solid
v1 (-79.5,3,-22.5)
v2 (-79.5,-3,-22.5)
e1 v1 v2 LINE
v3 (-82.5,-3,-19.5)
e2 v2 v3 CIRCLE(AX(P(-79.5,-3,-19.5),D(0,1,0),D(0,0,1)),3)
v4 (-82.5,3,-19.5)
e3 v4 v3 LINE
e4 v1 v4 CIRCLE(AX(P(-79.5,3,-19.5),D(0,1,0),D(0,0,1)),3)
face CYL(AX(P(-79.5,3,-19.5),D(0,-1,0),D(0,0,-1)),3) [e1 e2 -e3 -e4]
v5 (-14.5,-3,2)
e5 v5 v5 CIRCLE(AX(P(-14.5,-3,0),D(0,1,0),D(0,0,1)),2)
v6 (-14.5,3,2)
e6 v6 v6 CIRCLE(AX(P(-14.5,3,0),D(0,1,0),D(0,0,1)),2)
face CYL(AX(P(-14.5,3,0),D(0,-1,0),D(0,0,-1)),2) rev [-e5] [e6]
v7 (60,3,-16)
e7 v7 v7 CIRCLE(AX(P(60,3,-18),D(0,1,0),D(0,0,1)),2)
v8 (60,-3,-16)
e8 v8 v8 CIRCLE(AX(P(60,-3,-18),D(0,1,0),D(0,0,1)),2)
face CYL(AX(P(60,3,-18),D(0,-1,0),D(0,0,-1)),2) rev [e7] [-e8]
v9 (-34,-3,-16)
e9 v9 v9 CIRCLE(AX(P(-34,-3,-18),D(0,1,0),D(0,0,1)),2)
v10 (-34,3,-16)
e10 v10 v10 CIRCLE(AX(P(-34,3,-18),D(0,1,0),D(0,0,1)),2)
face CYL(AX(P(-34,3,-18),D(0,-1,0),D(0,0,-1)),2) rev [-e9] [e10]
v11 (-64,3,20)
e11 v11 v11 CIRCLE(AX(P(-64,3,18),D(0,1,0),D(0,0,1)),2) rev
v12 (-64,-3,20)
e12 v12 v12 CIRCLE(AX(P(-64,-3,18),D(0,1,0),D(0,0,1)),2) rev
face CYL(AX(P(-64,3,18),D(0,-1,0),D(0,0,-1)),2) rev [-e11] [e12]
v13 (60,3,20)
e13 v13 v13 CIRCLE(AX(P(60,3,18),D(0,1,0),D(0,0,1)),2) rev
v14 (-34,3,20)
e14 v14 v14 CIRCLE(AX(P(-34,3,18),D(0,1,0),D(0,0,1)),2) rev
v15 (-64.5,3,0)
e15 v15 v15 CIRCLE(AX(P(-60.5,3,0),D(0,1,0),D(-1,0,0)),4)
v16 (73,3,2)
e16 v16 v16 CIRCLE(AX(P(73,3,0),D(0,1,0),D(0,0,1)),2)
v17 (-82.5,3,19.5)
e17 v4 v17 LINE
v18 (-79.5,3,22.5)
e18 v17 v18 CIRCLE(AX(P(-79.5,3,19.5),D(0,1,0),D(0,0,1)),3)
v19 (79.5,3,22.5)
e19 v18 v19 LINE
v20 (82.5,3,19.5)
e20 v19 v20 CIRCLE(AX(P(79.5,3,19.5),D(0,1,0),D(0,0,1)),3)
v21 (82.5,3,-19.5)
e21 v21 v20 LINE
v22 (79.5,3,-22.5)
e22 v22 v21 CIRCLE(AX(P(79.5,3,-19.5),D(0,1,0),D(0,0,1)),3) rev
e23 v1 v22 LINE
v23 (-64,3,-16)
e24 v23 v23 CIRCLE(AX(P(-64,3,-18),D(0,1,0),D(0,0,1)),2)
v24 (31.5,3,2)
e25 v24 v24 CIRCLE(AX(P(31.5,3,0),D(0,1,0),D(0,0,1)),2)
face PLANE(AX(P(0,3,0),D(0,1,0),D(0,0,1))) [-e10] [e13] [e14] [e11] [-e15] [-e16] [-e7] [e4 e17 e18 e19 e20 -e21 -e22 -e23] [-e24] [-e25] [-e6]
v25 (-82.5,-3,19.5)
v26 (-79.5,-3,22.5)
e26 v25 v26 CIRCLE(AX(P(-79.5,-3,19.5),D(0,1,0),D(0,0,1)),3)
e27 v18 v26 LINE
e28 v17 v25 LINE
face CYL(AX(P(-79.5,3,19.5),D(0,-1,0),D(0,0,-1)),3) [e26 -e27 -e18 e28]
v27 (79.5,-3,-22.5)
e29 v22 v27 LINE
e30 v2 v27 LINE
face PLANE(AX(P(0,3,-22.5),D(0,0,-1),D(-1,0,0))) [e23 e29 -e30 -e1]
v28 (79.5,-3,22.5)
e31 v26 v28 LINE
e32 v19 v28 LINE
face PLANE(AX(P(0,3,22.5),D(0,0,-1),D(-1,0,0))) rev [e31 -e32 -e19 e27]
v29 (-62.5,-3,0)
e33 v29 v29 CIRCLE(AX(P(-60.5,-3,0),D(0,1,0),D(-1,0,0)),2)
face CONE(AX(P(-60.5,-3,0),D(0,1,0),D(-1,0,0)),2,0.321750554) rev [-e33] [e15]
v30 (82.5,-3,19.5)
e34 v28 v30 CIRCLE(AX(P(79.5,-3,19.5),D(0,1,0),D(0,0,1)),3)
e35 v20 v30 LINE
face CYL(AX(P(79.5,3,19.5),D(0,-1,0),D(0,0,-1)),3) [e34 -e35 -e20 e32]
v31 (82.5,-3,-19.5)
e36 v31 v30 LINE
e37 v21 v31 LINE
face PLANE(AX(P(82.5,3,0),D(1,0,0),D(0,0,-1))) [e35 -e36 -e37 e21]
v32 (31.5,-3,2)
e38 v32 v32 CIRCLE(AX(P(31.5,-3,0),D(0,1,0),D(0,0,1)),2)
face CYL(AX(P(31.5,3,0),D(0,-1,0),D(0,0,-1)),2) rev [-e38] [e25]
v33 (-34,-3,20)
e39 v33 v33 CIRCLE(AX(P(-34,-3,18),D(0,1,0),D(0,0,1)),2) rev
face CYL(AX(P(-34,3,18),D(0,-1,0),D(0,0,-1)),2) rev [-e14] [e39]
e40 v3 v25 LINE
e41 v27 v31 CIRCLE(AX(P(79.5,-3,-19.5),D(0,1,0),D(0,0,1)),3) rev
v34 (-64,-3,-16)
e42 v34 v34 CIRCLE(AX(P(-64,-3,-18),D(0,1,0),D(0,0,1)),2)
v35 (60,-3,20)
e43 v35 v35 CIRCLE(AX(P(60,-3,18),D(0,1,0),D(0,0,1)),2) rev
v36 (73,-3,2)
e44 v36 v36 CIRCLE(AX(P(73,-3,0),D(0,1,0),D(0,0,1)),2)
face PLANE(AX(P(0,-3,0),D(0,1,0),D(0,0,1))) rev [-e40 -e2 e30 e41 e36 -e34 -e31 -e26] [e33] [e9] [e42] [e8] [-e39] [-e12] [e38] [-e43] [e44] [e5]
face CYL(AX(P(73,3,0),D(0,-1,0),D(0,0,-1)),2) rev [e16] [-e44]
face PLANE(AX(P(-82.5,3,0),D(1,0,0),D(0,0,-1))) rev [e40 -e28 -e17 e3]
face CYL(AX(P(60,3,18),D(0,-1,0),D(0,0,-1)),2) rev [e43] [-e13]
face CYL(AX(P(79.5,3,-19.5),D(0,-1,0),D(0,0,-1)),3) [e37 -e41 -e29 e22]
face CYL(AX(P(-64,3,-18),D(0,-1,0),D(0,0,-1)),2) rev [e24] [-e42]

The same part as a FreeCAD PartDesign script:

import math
import FreeCAD as App
import Part
import Sketcher
from FreeCAD import Vector
Q = App.Units.Quantity


def add_polygon(sketch, points):
    """Adds a closed chain of lines whose ends are joined by coincident constraints."""
    first, n = sketch.GeometryCount, len(points)
    for a, b in zip(points, points[1:] + points[:1]):
        sketch.addGeometry(Part.LineSegment(App.Vector(*a, 0), App.Vector(*b, 0)), False)
    for i in range(n):
        sketch.addConstraint(Sketcher.Constraint("Coincident", first + i, 2, first + (i + 1) % n, 1))

doc = App.newDocument("Part")
params = doc.addObject("Spreadsheet::Sheet", "Params")
for row, (alias, value) in enumerate([
    ("sketch1_diameter", "4 mm"),
    ("sketch1_radius", "3 mm"),
    ("sketch1_width", "159 mm"),
    ("sketch1_height", "39 mm"),
    ("pad1_length", "6 mm"),
    ("sketch2_width", "2 mm"),
    ("sketch2_height", "6 mm"),
    ("groove_angle", "360 deg"),
], start=1):
    params.set(f"A{row}", alias)
    params.set(f"B{row}", "=" + value)
    params.setAlias(f"B{row}", alias)

body = doc.addObject("PartDesign::Body", "Body")

sketch1 = body.newObject("Sketcher::SketchObject", "Sketch")
sketch1.AttachmentSupport = (doc.getObject("XZ_Plane"), [""])
sketch1.MapMode = "FlatFace"
sketch1.addGeometry([
    Part.LineSegment(Vector(79.5, -22.5, 0), Vector(-79.5, -22.5, 0)),
    Part.ArcOfCircle(Part.Circle(Vector(-79.5, -19.5, 0), Vector(0, 0, 1), 3), math.radians(180), math.radians(270)),
    Part.LineSegment(Vector(-82.5, -19.5, 0), Vector(-82.5, 19.5, 0)),
    Part.ArcOfCircle(Part.Circle(Vector(-79.5, 19.5, 0), Vector(0, 0, 1), 3), math.radians(90), math.radians(180)),
    Part.LineSegment(Vector(-79.5, 22.5, 0), Vector(79.5, 22.5, 0)),
    Part.ArcOfCircle(Part.Circle(Vector(79.5, 19.5, 0), Vector(0, 0, 1), 3), math.radians(0), math.radians(90)),
    Part.LineSegment(Vector(82.5, 19.5, 0), Vector(82.5, -19.5, 0)),
    Part.ArcOfCircle(Part.Circle(Vector(79.5, -19.5, 0), Vector(0, 0, 1), 3), math.radians(-90), math.radians(0)),
    Part.Circle(Vector(60, 18, 0), Vector(0, 0, 1), 2),
    Part.Circle(Vector(-34, 18, 0), Vector(0, 0, 1), 2),
    Part.Circle(Vector(-64, 18, 0), Vector(0, 0, 1), 2),
    Part.Circle(Vector(73, 0, 0), Vector(0, 0, 1), 2),
    Part.Circle(Vector(31.5, 0, 0), Vector(0, 0, 1), 2),
    Part.Circle(Vector(60, -18, 0), Vector(0, 0, 1), 2),
    Part.Circle(Vector(-14.5, 0, 0), Vector(0, 0, 1), 2),
    Part.Circle(Vector(-60.5, 0, 0), Vector(0, 0, 1), 2),
    Part.Circle(Vector(-34, -18, 0), Vector(0, 0, 1), 2),
    Part.Circle(Vector(-64, -18, 0), Vector(0, 0, 1), 2),
], False)
sketch1.addConstraint([
    Sketcher.Constraint("Tangent", 0, 2, 1, 2),
    Sketcher.Constraint("Tangent", 1, 1, 2, 1),
    Sketcher.Constraint("Tangent", 2, 2, 3, 2),
    Sketcher.Constraint("Tangent", 3, 1, 4, 1),
    Sketcher.Constraint("Tangent", 4, 2, 5, 2),
    Sketcher.Constraint("Tangent", 5, 1, 6, 1),
    Sketcher.Constraint("Tangent", 6, 2, 7, 2),
    Sketcher.Constraint("Tangent", 7, 1, 0, 1),
    Sketcher.Constraint("Horizontal", 0),
    Sketcher.Constraint("Vertical", 2),
    Sketcher.Constraint("Horizontal", 4),
    Sketcher.Constraint("Vertical", 6),
    Sketcher.Constraint("Equal", 1, 3),
    Sketcher.Constraint("Equal", 3, 5),
    Sketcher.Constraint("Equal", 5, 7),
    Sketcher.Constraint("Equal", 8, 9),
    Sketcher.Constraint("Equal", 9, 10),
    Sketcher.Constraint("Equal", 10, 11),
    Sketcher.Constraint("Equal", 11, 12),
    Sketcher.Constraint("Equal", 12, 13),
    Sketcher.Constraint("Equal", 13, 14),
    Sketcher.Constraint("Equal", 14, 15),
    Sketcher.Constraint("Equal", 15, 16),
    Sketcher.Constraint("Equal", 16, 17),
    Sketcher.Constraint("Symmetric", 1, 3, 5, 3, -1, 1),
    Sketcher.Constraint("Symmetric", 8, 3, 13, 3, -1),
    Sketcher.Constraint("Symmetric", 9, 3, 16, 3, -1),
    Sketcher.Constraint("Symmetric", 10, 3, 17, 3, -1),
    Sketcher.Constraint("PointOnObject", 11, 3, -1),
    Sketcher.Constraint("PointOnObject", 12, 3, -1),
    Sketcher.Constraint("PointOnObject", 14, 3, -1),
    Sketcher.Constraint("PointOnObject", 15, 3, -1),
    Sketcher.Constraint("Horizontal", 8, 3, 9, 3),
    Sketcher.Constraint("Horizontal", 9, 3, 10, 3),
    Sketcher.Constraint("Diameter", 8, Q("4 mm")),
    Sketcher.Constraint("Radius", 1, Q("3 mm")),
    Sketcher.Constraint("DistanceX", 0, 2, 0, 1, Q("159 mm")),
    Sketcher.Constraint("DistanceY", 2, 1, 2, 2, Q("39 mm")),
    Sketcher.Constraint("DistanceX", -1, 1, 8, 3, Q("60 mm")),
    Sketcher.Constraint("DistanceY", -1, 1, 8, 3, Q("18 mm")),
    Sketcher.Constraint("DistanceX", 9, 3, -1, 1, Q("34 mm")),
    Sketcher.Constraint("DistanceX", 10, 3, -1, 1, Q("64 mm")),
    Sketcher.Constraint("DistanceX", -1, 1, 11, 3, Q("73 mm")),
    Sketcher.Constraint("DistanceX", 12, 3, 5, 3, Q("48 mm")),
    Sketcher.Constraint("DistanceX", 14, 3, 12, 3, Q("46 mm")),
    Sketcher.Constraint("DistanceX", 1, 3, 15, 3, Q("19 mm")),
])
sketch1.setExpression("Constraints[34]", "Params.sketch1_diameter")
sketch1.setExpression("Constraints[35]", "Params.sketch1_radius")
sketch1.setExpression("Constraints[36]", "Params.sketch1_width")
sketch1.setExpression("Constraints[37]", "Params.sketch1_height")
pad1 = body.newObject("PartDesign::Pad", "Pad")
pad1.Profile = sketch1
pad1.setExpression("Length", "Params.pad1_length")
pad1.Midplane = True

sketch2 = body.newObject("Sketcher::SketchObject", "Sketch001")
sketch2.AttachmentSupport = (doc.getObject("XY_Plane"), [""])
sketch2.MapMode = "FlatFace"
add_polygon(sketch2, [(-58.5, -3), (-56.5, 3), (-58.5, 3)])
sketch2.addGeometry(Part.LineSegment(Vector(-60.5, 3, 0), Vector(-60.5, -3, 0)), True)
sketch2.addConstraint([
    Sketcher.Constraint("Horizontal", 1),
    Sketcher.Constraint("Vertical", 2),
    Sketcher.Constraint("Vertical", 3),
    Sketcher.Constraint("Horizontal", 1, 2, 3, 1),
    Sketcher.Constraint("Horizontal", 2, 2, 3, 2),
    Sketcher.Constraint("DistanceX", 1, 2, 1, 1, Q("2 mm")),
    Sketcher.Constraint("DistanceY", 2, 2, 2, 1, Q("6 mm")),
    Sketcher.Constraint("DistanceY", -1, 1, 0, 2, Q("3 mm")),
    Sketcher.Constraint("DistanceX", 3, 1, 1, 2, Q("2 mm")),
    Sketcher.Constraint("DistanceX", 0, 2, -1, 1, Q("56.5 mm")),
])
sketch2.setExpression("Constraints[8]", "Params.sketch2_width")
sketch2.setExpression("Constraints[9]", "Params.sketch2_height")
groove = body.newObject("PartDesign::Groove", "Groove")
groove.Profile = sketch2
groove.ReferenceAxis = (sketch2, ["Axis0"])
groove.setExpression("Angle", "Params.groove_angle")

doc.recompute()
